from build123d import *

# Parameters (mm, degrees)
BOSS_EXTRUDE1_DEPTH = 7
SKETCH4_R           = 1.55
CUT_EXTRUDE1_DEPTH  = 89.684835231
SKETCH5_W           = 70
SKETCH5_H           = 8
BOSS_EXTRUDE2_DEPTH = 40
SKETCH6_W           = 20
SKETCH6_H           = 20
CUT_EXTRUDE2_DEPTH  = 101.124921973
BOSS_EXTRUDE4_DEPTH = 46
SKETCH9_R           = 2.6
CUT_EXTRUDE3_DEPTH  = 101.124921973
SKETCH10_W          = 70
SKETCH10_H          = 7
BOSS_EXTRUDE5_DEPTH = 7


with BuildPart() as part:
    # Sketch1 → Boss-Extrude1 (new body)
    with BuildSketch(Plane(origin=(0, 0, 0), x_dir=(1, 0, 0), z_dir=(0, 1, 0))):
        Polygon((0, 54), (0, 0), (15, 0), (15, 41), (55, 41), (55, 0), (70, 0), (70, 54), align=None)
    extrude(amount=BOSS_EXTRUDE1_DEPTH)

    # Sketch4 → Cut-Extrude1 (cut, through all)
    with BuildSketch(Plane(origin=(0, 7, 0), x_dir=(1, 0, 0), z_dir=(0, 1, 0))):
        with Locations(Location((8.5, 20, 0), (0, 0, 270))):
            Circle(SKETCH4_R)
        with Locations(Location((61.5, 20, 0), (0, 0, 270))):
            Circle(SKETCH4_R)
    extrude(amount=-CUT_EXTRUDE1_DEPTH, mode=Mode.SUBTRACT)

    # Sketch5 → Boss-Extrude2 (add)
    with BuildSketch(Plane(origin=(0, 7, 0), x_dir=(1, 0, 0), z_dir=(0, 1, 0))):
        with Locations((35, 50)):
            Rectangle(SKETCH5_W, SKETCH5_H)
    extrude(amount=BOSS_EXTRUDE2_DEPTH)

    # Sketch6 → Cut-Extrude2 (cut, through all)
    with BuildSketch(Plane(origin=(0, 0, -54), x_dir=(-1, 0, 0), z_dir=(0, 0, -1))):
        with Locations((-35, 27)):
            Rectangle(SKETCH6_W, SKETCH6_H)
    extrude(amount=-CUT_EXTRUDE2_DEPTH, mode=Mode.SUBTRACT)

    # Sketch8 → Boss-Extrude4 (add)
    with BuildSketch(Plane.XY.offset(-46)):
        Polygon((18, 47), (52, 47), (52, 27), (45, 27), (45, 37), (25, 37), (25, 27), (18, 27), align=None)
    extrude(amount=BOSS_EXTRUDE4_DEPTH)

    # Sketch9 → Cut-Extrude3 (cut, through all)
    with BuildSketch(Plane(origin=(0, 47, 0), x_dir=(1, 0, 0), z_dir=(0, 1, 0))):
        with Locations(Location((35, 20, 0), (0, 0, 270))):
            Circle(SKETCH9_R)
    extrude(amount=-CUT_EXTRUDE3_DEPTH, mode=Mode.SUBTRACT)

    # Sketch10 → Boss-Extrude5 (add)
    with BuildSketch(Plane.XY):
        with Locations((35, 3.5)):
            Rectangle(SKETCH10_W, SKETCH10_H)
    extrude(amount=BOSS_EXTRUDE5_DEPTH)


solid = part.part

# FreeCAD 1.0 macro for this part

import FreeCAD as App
import Part
import Sketcher
from FreeCAD import Vector
Q = App.Units.Quantity

doc = App.newDocument("Part")
body = doc.addObject("PartDesign::Body", "Body")

# Sketch on XZ plane
sketch1 = body.newObject("Sketcher::SketchObject", "Sketch")
sketch1.AttachmentSupport = (doc.getObject("XZ_Plane"), [""])
sketch1.MapMode = "FlatFace"
sketch1.addGeometry([
    Part.LineSegment(Vector(0, -54, 0), Vector(0, 0, 0)),  # 0
    Part.LineSegment(Vector(0, 0, 0), Vector(15, 0, 0)),  # 1
    Part.LineSegment(Vector(15, 0, 0), Vector(15, -41, 0)),  # 2
    Part.LineSegment(Vector(15, -41, 0), Vector(55, -41, 0)),  # 3
    Part.LineSegment(Vector(55, -41, 0), Vector(55, 0, 0)),  # 4
    Part.LineSegment(Vector(55, 0, 0), Vector(70, 0, 0)),  # 5
    Part.LineSegment(Vector(70, 0, 0), Vector(70, -54, 0)),  # 6
    Part.LineSegment(Vector(70, -54, 0), Vector(0, -54, 0)),  # 7
], False)
sketch1.addConstraint([
    Sketcher.Constraint("Coincident", 0, 2, 1, 1),
    Sketcher.Constraint("Coincident", 1, 2, 2, 1),
    Sketcher.Constraint("Coincident", 2, 2, 3, 1),
    Sketcher.Constraint("Coincident", 3, 2, 4, 1),
    Sketcher.Constraint("Coincident", 4, 2, 5, 1),
    Sketcher.Constraint("Coincident", 5, 2, 6, 1),
    Sketcher.Constraint("Coincident", 6, 2, 7, 1),
    Sketcher.Constraint("Coincident", 7, 2, 0, 1),
    Sketcher.Constraint("Vertical", 0),
    Sketcher.Constraint("Horizontal", 1),
    Sketcher.Constraint("Vertical", 2),
    Sketcher.Constraint("Horizontal", 3),
    Sketcher.Constraint("Vertical", 4),
    Sketcher.Constraint("Horizontal", 5),
    Sketcher.Constraint("Vertical", 6),
    Sketcher.Constraint("Horizontal", 7),
    Sketcher.Constraint("Coincident", 0, 2, -1, 1),
    Sketcher.Constraint("PointOnObject", 4, 2, -1),
    Sketcher.Constraint("Equal", 1, 5),
    Sketcher.Constraint("DistanceX", 1, 1, 1, 2, Q("15 mm")),
    Sketcher.Constraint("DistanceX", 3, 1, 3, 2, Q("40 mm")),
    Sketcher.Constraint("DistanceY", 0, 1, 0, 2, Q("54 mm")),
    Sketcher.Constraint("DistanceY", 2, 2, 2, 1, Q("41 mm")),
])
pad1 = body.newObject("PartDesign::Pad", "Pad")
pad1.Profile = sketch1
pad1.Length = 7
pad1.Reversed = True

# Sketch on XZ plane
sketch2 = body.newObject("Sketcher::SketchObject", "Sketch001")
sketch2.AttachmentSupport = (doc.getObject("XZ_Plane"), [""])
sketch2.MapMode = "FlatFace"
sketch2.AttachmentOffset = App.Placement(Vector(0, 0, -7), App.Rotation())
sketch2.addGeometry([
    Part.Circle(Vector(8.5, -20, 0), Vector(0, 0, 1), 1.55),
    Part.Circle(Vector(61.5, -20, 0), Vector(0, 0, 1), 1.55),
], False)
sketch2.addConstraint([
    Sketcher.Constraint("Equal", 0, 1),
    Sketcher.Constraint("Horizontal", 0, 3, 1, 3),
    Sketcher.Constraint("Diameter", 0, Q("3.1 mm")),
    Sketcher.Constraint("DistanceY", 0, 3, -1, 1, Q("20 mm")),
    Sketcher.Constraint("DistanceX", 0, 3, 1, 3, Q("53 mm")),
    Sketcher.Constraint("DistanceX", -1, 1, 0, 3, Q("8.5 mm")),
])
pocket1 = body.newObject("PartDesign::Pocket", "Pocket")
pocket1.Profile = sketch2
pocket1.Type = "ThroughAll"
pocket1.Reversed = True

# Sketch on XZ plane
sketch3 = body.newObject("Sketcher::SketchObject", "Sketch002")
sketch3.AttachmentSupport = (doc.getObject("XZ_Plane"), [""])
sketch3.MapMode = "FlatFace"
sketch3.AttachmentOffset = App.Placement(Vector(0, 0, -7), App.Rotation())
sketch3.addGeometry([
    Part.LineSegment(Vector(0, -54, 0), Vector(0, -46, 0)),
    Part.LineSegment(Vector(0, -46, 0), Vector(70, -46, 0)),
    Part.LineSegment(Vector(70, -46, 0), Vector(70, -54, 0)),
    Part.LineSegment(Vector(70, -54, 0), Vector(0, -54, 0)),
], False)
sketch3.addConstraint([
    Sketcher.Constraint("Coincident", 0, 2, 1, 1),
    Sketcher.Constraint("Coincident", 1, 2, 2, 1),
    Sketcher.Constraint("Coincident", 2, 2, 3, 1),
    Sketcher.Constraint("Coincident", 3, 2, 0, 1),
    Sketcher.Constraint("Vertical", 0),
    Sketcher.Constraint("Horizontal", 1),
    Sketcher.Constraint("Vertical", 2),
    Sketcher.Constraint("Horizontal", 3),
    Sketcher.Constraint("PointOnObject", 0, 2, -2),
    Sketcher.Constraint("DistanceX", 1, 1, 1, 2, Q("70 mm")),
    Sketcher.Constraint("DistanceY", 0, 1, 0, 2, Q("8 mm")),
    Sketcher.Constraint("DistanceY", 0, 2, -1, 1, Q("46 mm")),
])
pad2 = body.newObject("PartDesign::Pad", "Pad001")
pad2.Profile = sketch3
pad2.Length = 40
pad2.Reversed = True

# Sketch on XY plane
sketch4 = body.newObject("Sketcher::SketchObject", "Sketch003")
sketch4.AttachmentSupport = (doc.getObject("XY_Plane"), [""])
sketch4.MapMode = "FlatFace"
sketch4.AttachmentOffset = App.Placement(Vector(0, 0, -54), App.Rotation())
sketch4.addGeometry([
    Part.LineSegment(Vector(45, 37, 0), Vector(45, 17, 0)),
    Part.LineSegment(Vector(45, 17, 0), Vector(25, 17, 0)),
    Part.LineSegment(Vector(25, 17, 0), Vector(25, 37, 0)),
    Part.LineSegment(Vector(25, 37, 0), Vector(45, 37, 0)),
], False)
sketch4.addConstraint([
    Sketcher.Constraint("Coincident", 0, 2, 1, 1),
    Sketcher.Constraint("Coincident", 1, 2, 2, 1),
    Sketcher.Constraint("Coincident", 2, 2, 3, 1),
    Sketcher.Constraint("Coincident", 3, 2, 0, 1),
    Sketcher.Constraint("Vertical", 0),
    Sketcher.Constraint("Horizontal", 1),
    Sketcher.Constraint("Vertical", 2),
    Sketcher.Constraint("Horizontal", 3),
    Sketcher.Constraint("Equal", 3, 0),
    Sketcher.Constraint("DistanceX", 1, 2, 1, 1, Q("20 mm")),
    Sketcher.Constraint("DistanceX", -1, 1, 0, 2, Q("45 mm")),
    Sketcher.Constraint("DistanceY", -1, 1, 0, 2, Q("17 mm")),
])
pocket2 = body.newObject("PartDesign::Pocket", "Pocket001")
pocket2.Profile = sketch4
pocket2.Type = "ThroughAll"
pocket2.Reversed = True

# Sketch on XY plane
sketch5 = body.newObject("Sketcher::SketchObject", "Sketch004")
sketch5.AttachmentSupport = (doc.getObject("XY_Plane"), [""])
sketch5.MapMode = "FlatFace"
sketch5.AttachmentOffset = App.Placement(Vector(0, 0, -46), App.Rotation())
sketch5.addGeometry([
    Part.LineSegment(Vector(52, 47, 0), Vector(18, 47, 0)),  # 0
    Part.LineSegment(Vector(18, 47, 0), Vector(18, 27, 0)),  # 1
    Part.LineSegment(Vector(18, 27, 0), Vector(25, 27, 0)),  # 2
    Part.LineSegment(Vector(25, 27, 0), Vector(25, 37, 0)),  # 3
    Part.LineSegment(Vector(25, 37, 0), Vector(45, 37, 0)),  # 4
    Part.LineSegment(Vector(45, 37, 0), Vector(45, 27, 0)),  # 5
    Part.LineSegment(Vector(45, 27, 0), Vector(52, 27, 0)),  # 6
    Part.LineSegment(Vector(52, 27, 0), Vector(52, 47, 0)),  # 7
], False)
sketch5.addConstraint([
    Sketcher.Constraint("Coincident", 0, 2, 1, 1),
    Sketcher.Constraint("Coincident", 1, 2, 2, 1),
    Sketcher.Constraint("Coincident", 2, 2, 3, 1),
    Sketcher.Constraint("Coincident", 3, 2, 4, 1),
    Sketcher.Constraint("Coincident", 4, 2, 5, 1),
    Sketcher.Constraint("Coincident", 5, 2, 6, 1),
    Sketcher.Constraint("Coincident", 6, 2, 7, 1),
    Sketcher.Constraint("Coincident", 7, 2, 0, 1),
    Sketcher.Constraint("Horizontal", 0),
    Sketcher.Constraint("Vertical", 1),
    Sketcher.Constraint("Horizontal", 2),
    Sketcher.Constraint("Vertical", 3),
    Sketcher.Constraint("Horizontal", 4),
    Sketcher.Constraint("Vertical", 5),
    Sketcher.Constraint("Horizontal", 6),
    Sketcher.Constraint("Vertical", 7),
    Sketcher.Constraint("Horizontal", 2, 2, 5, 2),
    Sketcher.Constraint("Equal", 2, 6),
    Sketcher.Constraint("Equal", 4, 1),
    Sketcher.Constraint("DistanceX", 0, 2, 0, 1, Q("34 mm")),
    Sketcher.Constraint("DistanceX", 2, 1, 2, 2, Q("7 mm")),
    Sketcher.Constraint("DistanceY", 3, 1, 3, 2, Q("10 mm")),
    Sketcher.Constraint("DistanceX", -1, 1, 0, 2, Q("18 mm")),
    Sketcher.Constraint("DistanceY", -1, 1, 0, 2, Q("47 mm")),
])
pad3 = body.newObject("PartDesign::Pad", "Pad002")
pad3.Profile = sketch5
pad3.Length = 46

# Sketch on XZ plane
sketch6 = body.newObject("Sketcher::SketchObject", "Sketch005")
sketch6.AttachmentSupport = (doc.getObject("XZ_Plane"), [""])
sketch6.MapMode = "FlatFace"
sketch6.AttachmentOffset = App.Placement(Vector(0, 0, -47), App.Rotation())
sketch6.addGeometry(Part.Circle(Vector(35, -20, 0), Vector(0, 0, 1), 2.6), False)
sketch6.addConstraint([
    Sketcher.Constraint("Diameter", 0, Q("5.2 mm")),
    Sketcher.Constraint("DistanceX", -1, 1, 0, 3, Q("35 mm")),
    Sketcher.Constraint("DistanceY", 0, 3, -1, 1, Q("20 mm")),
])
pocket3 = body.newObject("PartDesign::Pocket", "Pocket002")
pocket3.Profile = sketch6
pocket3.Type = "ThroughAll"
pocket3.Reversed = True

# Sketch on XY plane
sketch7 = body.newObject("Sketcher::SketchObject", "Sketch006")
sketch7.AttachmentSupport = (doc.getObject("XY_Plane"), [""])
sketch7.MapMode = "FlatFace"
sketch7.addGeometry([
    Part.LineSegment(Vector(0, 7, 0), Vector(0, 0, 0)),
    Part.LineSegment(Vector(0, 0, 0), Vector(70, 0, 0)),
    Part.LineSegment(Vector(70, 0, 0), Vector(70, 7, 0)),
    Part.LineSegment(Vector(70, 7, 0), Vector(0, 7, 0)),
], False)
sketch7.addConstraint([
    Sketcher.Constraint("Coincident", 0, 2, 1, 1),
    Sketcher.Constraint("Coincident", 1, 2, 2, 1),
    Sketcher.Constraint("Coincident", 2, 2, 3, 1),
    Sketcher.Constraint("Coincident", 3, 2, 0, 1),
    Sketcher.Constraint("Vertical", 0),
    Sketcher.Constraint("Horizontal", 1),
    Sketcher.Constraint("Vertical", 2),
    Sketcher.Constraint("Horizontal", 3),
    Sketcher.Constraint("Coincident", 0, 2, -1, 1),
    Sketcher.Constraint("DistanceX", 1, 1, 1, 2, Q("70 mm")),
    Sketcher.Constraint("DistanceY", 0, 2, 0, 1, Q("7 mm")),
])
pad4 = body.newObject("PartDesign::Pad", "Pad003")
pad4.Profile = sketch7
pad4.Length = 7

doc.recompute()
